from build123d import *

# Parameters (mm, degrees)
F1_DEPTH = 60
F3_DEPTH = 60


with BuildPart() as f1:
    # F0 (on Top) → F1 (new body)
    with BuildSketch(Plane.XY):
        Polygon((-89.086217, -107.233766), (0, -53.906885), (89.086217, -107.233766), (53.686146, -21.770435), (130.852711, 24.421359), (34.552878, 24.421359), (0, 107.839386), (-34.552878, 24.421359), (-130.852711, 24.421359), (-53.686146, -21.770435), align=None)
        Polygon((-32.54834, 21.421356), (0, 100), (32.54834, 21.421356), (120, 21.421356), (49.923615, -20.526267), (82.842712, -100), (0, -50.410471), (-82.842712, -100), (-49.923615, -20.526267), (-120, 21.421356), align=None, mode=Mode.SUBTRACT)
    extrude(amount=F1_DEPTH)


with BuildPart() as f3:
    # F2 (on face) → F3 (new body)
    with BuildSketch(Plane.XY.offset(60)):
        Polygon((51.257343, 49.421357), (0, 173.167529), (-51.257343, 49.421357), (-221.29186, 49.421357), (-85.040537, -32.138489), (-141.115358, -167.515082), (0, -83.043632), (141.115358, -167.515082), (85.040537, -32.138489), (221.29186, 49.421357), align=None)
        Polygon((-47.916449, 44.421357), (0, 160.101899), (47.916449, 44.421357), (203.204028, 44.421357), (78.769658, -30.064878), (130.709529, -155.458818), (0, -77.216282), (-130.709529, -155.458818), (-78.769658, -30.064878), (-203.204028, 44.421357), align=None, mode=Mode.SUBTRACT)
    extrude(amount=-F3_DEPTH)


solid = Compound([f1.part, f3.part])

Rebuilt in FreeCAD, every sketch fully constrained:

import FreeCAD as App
import Part
import Sketcher
from FreeCAD import Vector
Q = App.Units.Quantity


def add_polygon(sketch, points):
    """Adds a closed chain of lines whose ends are joined by coincident constraints."""
    first, n = sketch.GeometryCount, len(points)
    for a, b in zip(points, points[1:] + points[:1]):
        sketch.addGeometry(Part.LineSegment(App.Vector(*a, 0), App.Vector(*b, 0)), False)
    for i in range(n):
        sketch.addConstraint(Sketcher.Constraint("Coincident", first + i, 2, first + (i + 1) % n, 1))

doc = App.newDocument("Part")
body = doc.addObject("PartDesign::Body", "Body")

# Sketch on XY plane
sketch1 = body.newObject("Sketcher::SketchObject", "Sketch")
sketch1.AttachmentSupport = (doc.getObject("XY_Plane"), [""])
sketch1.MapMode = "FlatFace"
add_polygon(sketch1, [(-89.086217, -107.233766), (0, -53.906885), (89.086217, -107.233766), (53.686146, -21.770435), (130.852711, 24.421359), (34.552878, 24.421359), (0, 107.839386), (-34.552878, 24.421359), (-130.852711, 24.421359), (-53.686146, -21.770435)])  # lines 0-9
add_polygon(sketch1, [(-120, 21.421356), (-32.54834, 21.421356), (0, 100), (32.54834, 21.421356), (120, 21.421356), (49.923615, -20.526267), (82.842712, -100), (0, -50.410471), (-82.842712, -100), (-49.923615, -20.526267)])  # lines 10-19
sketch1.addConstraint(Sketcher.Constraint("Horizontal", 4))
sketch1.addConstraint(Sketcher.Constraint("Horizontal", 7))
sketch1.addConstraint(Sketcher.Constraint("Horizontal", 10))
sketch1.addConstraint(Sketcher.Constraint("Horizontal", 13))
sketch1.addConstraint(Sketcher.Constraint("Symmetric", 4, 2, 6, 2, -2))
sketch1.addConstraint(Sketcher.Constraint("Symmetric", 2, 2, 8, 2, -2))
sketch1.addConstraint(Sketcher.Constraint("Symmetric", 1, 2, 9, 2, -2))
sketch1.addConstraint(Sketcher.Constraint("Symmetric", 10, 2, 12, 2, -2))
sketch1.addConstraint(Sketcher.Constraint("Symmetric", 15, 2, 17, 2, -2))
sketch1.addConstraint(Sketcher.Constraint("Symmetric", 14, 2, 18, 2, -2))
sketch1.addConstraint(Sketcher.Constraint("PointOnObject", 0, 2, -2))
sketch1.addConstraint(Sketcher.Constraint("PointOnObject", 5, 2, -2))
sketch1.addConstraint(Sketcher.Constraint("PointOnObject", 11, 2, -2))
sketch1.addConstraint(Sketcher.Constraint("PointOnObject", 16, 2, -2))
sketch1.addConstraint(Sketcher.Constraint("Parallel", 0, 3))
sketch1.addConstraint(Sketcher.Constraint("Parallel", 2, 5))
sketch1.addConstraint(Sketcher.Constraint("Parallel", 1, 8))
sketch1.addConstraint(Sketcher.Constraint("Parallel", 9, 11))
sketch1.addConstraint(Sketcher.Constraint("Parallel", 3, 14))
sketch1.addConstraint(Sketcher.Constraint("Parallel", 12, 15))
sketch1.addConstraint(Sketcher.Constraint("Parallel", 8, 16))
sketch1.addConstraint(Sketcher.Constraint("Parallel", 16, 19))
sketch1.addConstraint(Sketcher.Constraint("DistanceY", -1, 1, 11, 2, Q("100 mm")))
sketch1.addConstraint(Sketcher.Constraint("DistanceX", -1, 1, 13, 2, Q("120 mm")))
sketch1.addConstraint(Sketcher.Constraint("DistanceY", 15, 2, -1, 1, Q("100 mm")))
sketch1.addConstraint(Sketcher.Constraint("Angle", 2, Q("112.5 deg")))
sketch1.addConstraint(Sketcher.Constraint("DistanceX", 10, 1, 10, 2, Q("87.45166 mm")))
sketch1.addConstraint(Sketcher.Constraint("Distance", 0, Q("103.82731 mm")))
sketch1.addConstraint(Sketcher.Constraint("Distance", 5, Q("90.291022 mm")))
sketch1.addConstraint(Sketcher.Constraint("Distance", 14, Q("81.671922 mm")))
sketch1.addConstraint(Sketcher.Constraint("Distance", 15, Q("86.021748 mm")))
sketch1.addConstraint(Sketcher.Constraint("DistanceX", 4, 2, 4, 1, Q("96.299833 mm")))
sketch1.addConstraint(Sketcher.Constraint("DistanceY", -1, 1, 3, 2, Q("24.421359 mm")))
sketch1.addConstraint(Sketcher.Constraint("DistanceY", 0, 2, 2, 2, Q("32.13645 mm")))
pad1 = body.newObject("PartDesign::Pad", "Pad")
pad1.Profile = sketch1
pad1.Length = 60
body2 = doc.addObject("PartDesign::Body", "Body001")

# Sketch on XY plane
sketch2 = body2.newObject("Sketcher::SketchObject", "Sketch001")
sketch2.AttachmentSupport = (doc.getObject("XY_Plane001"), [""])
sketch2.MapMode = "FlatFace"
sketch2.AttachmentOffset = App.Placement(Vector(0, 0, 60), App.Rotation())
add_polygon(sketch2, [(51.257343, 49.421357), (0, 173.167529), (-51.257343, 49.421357), (-221.29186, 49.421357), (-85.040537, -32.138489), (-141.115358, -167.515082), (0, -83.043632), (141.115358, -167.515082), (85.040537, -32.138489), (221.29186, 49.421357)])  # lines 0-9
add_polygon(sketch2, [(-203.204028, 44.421357), (-47.916449, 44.421357), (0, 160.101899), (47.916449, 44.421357), (203.204028, 44.421357), (78.769658, -30.064878), (130.709529, -155.458818), (0, -77.216282), (-130.709529, -155.458818), (-78.769658, -30.064878)])  # lines 10-19
sketch2.addConstraint(Sketcher.Constraint("Horizontal", 2))
sketch2.addConstraint(Sketcher.Constraint("Horizontal", 9))
sketch2.addConstraint(Sketcher.Constraint("Horizontal", 10))
sketch2.addConstraint(Sketcher.Constraint("Horizontal", 13))
sketch2.addConstraint(Sketcher.Constraint("Symmetric", 4, 2, 6, 2, -2))
sketch2.addConstraint(Sketcher.Constraint("Symmetric", 3, 2, 7, 2, -2))
sketch2.addConstraint(Sketcher.Constraint("Symmetric", 2, 2, 8, 2, -2))
sketch2.addConstraint(Sketcher.Constraint("Symmetric", 10, 2, 12, 2, -2))
sketch2.addConstraint(Sketcher.Constraint("Symmetric", 15, 2, 17, 2, -2))
sketch2.addConstraint(Sketcher.Constraint("Symmetric", 14, 2, 18, 2, -2))
sketch2.addConstraint(Sketcher.Constraint("PointOnObject", 0, 2, -2))
sketch2.addConstraint(Sketcher.Constraint("PointOnObject", 5, 2, -2))
sketch2.addConstraint(Sketcher.Constraint("PointOnObject", 11, 2, -2))
sketch2.addConstraint(Sketcher.Constraint("PointOnObject", 16, 2, -2))
sketch2.addConstraint(Sketcher.Constraint("Parallel", 1, 4))
sketch2.addConstraint(Sketcher.Constraint("Parallel", 3, 6))
sketch2.addConstraint(Sketcher.Constraint("Parallel", 0, 7))
sketch2.addConstraint(Sketcher.Constraint("Parallel", 4, 11))
sketch2.addConstraint(Sketcher.Constraint("Parallel", 8, 14))
sketch2.addConstraint(Sketcher.Constraint("Parallel", 12, 15))
sketch2.addConstraint(Sketcher.Constraint("Parallel", 6, 16))
sketch2.addConstraint(Sketcher.Constraint("Parallel", 16, 19))
sketch2.addConstraint(Sketcher.Constraint("Angle", 0, Q("112.5 deg")))
sketch2.addConstraint(Sketcher.Constraint("DistanceY", 10, 2, 1, 2, Q("5 mm")))
sketch2.addConstraint(Sketcher.Constraint("DistanceX", 10, 1, 10, 2, Q("155.287579 mm")))
sketch2.addConstraint(Sketcher.Constraint("DistanceY", -1, 1, 11, 2, Q("160.101899 mm")))
sketch2.addConstraint(Sketcher.Constraint("DistanceX", 1, 2, 6, 2, Q("192.372701 mm")))
sketch2.addConstraint(Sketcher.Constraint("DistanceX", 10, 2, 12, 2, Q("95.832898 mm")))
sketch2.addConstraint(Sketcher.Constraint("DistanceX", 15, 2, 13, 2, Q("72.494499 mm")))
sketch2.addConstraint(Sketcher.Constraint("Distance", 0, Q("133.941891 mm")))
sketch2.addConstraint(Sketcher.Constraint("Distance", 4, Q("146.530568 mm")))
sketch2.addConstraint(Sketcher.Constraint("Distance", 5, Q("164.465711 mm")))
sketch2.addConstraint(Sketcher.Constraint("Distance", 14, Q("145.024521 mm")))
sketch2.addConstraint(Sketcher.Constraint("DistanceX", 2, 2, 2, 1, Q("170.034517 mm")))
pad2 = body2.newObject("PartDesign::Pad", "Pad001")
pad2.Profile = sketch2
pad2.Length = 60
pad2.Reversed = True

doc.recompute()
